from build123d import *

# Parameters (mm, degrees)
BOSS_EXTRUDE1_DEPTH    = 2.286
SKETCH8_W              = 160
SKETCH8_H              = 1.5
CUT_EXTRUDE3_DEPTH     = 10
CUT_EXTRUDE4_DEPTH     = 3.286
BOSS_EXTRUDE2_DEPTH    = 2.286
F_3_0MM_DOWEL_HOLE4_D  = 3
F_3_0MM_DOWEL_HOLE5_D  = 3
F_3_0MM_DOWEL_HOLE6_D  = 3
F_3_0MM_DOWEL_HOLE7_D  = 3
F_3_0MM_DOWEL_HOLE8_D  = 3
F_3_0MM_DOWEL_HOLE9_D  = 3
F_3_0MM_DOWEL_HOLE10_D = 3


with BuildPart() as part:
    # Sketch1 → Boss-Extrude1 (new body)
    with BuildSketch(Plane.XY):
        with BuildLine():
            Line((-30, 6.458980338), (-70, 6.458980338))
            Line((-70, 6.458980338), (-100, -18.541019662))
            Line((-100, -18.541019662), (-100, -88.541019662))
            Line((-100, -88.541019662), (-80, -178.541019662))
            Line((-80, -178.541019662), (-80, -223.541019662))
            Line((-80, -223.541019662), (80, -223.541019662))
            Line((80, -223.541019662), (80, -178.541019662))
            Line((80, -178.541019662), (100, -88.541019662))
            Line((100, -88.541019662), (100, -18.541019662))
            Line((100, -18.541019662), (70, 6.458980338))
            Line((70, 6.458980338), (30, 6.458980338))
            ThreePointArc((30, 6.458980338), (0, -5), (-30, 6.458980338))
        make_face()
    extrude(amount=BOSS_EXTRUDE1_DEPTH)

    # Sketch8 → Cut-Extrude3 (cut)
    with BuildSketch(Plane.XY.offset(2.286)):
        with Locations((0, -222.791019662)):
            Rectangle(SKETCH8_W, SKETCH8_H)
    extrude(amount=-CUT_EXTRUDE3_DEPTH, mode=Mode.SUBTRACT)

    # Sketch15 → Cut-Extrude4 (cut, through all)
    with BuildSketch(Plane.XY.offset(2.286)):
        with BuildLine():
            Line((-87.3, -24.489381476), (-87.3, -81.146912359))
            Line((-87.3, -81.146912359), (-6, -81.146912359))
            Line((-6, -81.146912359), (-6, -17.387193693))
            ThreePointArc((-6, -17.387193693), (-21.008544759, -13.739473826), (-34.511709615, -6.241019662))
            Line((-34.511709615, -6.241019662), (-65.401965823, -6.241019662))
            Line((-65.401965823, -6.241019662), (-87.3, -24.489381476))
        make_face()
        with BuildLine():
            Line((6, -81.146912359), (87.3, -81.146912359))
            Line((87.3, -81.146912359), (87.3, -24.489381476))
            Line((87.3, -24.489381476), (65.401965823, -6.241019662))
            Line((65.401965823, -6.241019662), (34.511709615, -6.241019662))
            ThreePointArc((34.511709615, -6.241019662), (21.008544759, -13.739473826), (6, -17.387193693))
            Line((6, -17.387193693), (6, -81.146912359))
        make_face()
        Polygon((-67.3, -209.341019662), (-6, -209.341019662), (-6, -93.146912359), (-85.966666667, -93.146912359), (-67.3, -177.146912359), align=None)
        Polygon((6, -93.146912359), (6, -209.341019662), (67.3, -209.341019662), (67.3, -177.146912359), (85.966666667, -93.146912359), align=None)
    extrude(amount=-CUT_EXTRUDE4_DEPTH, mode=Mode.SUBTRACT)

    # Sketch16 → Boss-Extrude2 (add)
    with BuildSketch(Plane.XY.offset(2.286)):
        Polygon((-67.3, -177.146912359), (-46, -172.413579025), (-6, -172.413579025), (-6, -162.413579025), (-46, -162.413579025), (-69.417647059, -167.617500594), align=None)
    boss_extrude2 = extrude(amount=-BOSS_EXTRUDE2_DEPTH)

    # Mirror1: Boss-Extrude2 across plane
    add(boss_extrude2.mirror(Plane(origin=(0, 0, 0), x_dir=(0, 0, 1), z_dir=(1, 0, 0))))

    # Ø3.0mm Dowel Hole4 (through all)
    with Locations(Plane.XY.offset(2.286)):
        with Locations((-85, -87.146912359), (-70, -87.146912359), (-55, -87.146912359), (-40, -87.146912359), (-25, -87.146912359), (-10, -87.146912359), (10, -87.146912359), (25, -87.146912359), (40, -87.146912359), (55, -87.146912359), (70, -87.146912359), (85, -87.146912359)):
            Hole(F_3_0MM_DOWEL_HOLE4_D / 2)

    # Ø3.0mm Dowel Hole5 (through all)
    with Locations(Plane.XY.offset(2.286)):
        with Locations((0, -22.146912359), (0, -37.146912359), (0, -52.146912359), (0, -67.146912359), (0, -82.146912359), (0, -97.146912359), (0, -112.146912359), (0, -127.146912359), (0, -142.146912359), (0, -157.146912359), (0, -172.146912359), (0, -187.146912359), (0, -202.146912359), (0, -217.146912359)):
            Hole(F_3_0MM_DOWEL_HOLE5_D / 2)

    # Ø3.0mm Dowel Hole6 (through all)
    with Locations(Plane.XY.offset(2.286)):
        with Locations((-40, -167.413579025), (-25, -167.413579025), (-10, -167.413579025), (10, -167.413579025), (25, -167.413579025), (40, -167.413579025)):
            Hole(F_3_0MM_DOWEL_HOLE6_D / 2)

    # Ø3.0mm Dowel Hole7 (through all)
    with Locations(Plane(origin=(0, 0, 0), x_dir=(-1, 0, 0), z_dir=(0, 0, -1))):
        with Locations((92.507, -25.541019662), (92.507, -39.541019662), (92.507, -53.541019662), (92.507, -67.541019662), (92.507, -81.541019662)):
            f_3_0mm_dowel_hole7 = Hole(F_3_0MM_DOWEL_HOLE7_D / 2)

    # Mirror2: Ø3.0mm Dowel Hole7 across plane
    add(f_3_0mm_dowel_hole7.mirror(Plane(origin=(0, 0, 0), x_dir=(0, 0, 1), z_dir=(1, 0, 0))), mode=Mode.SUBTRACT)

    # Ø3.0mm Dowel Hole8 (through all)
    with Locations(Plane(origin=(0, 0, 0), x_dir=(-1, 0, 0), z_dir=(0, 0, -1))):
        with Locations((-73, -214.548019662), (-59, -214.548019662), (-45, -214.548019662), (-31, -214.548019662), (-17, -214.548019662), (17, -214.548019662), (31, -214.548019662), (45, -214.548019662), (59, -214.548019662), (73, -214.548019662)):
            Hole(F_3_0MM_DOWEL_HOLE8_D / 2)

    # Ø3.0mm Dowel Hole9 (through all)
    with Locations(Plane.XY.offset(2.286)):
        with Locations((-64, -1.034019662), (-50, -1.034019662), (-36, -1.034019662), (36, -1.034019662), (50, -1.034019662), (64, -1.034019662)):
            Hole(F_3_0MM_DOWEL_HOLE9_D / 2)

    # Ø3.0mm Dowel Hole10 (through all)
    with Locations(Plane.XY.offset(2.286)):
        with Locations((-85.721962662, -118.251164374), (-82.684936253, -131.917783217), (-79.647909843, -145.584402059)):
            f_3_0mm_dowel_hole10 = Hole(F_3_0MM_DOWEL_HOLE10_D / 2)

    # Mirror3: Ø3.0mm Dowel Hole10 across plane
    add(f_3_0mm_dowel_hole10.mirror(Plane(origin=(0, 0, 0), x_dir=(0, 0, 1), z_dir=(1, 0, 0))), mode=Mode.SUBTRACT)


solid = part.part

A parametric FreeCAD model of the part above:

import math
import FreeCAD as App
import Part
import Sketcher

V = App.Vector
Q = App.Units.Quantity


def add_polygon(sketch, points):
    """Adds a closed chain of lines whose ends are joined by coincident constraints."""
    first, n = sketch.GeometryCount, len(points)
    for a, b in zip(points, points[1:] + points[:1]):
        sketch.addGeometry(Part.LineSegment(App.Vector(*a, 0), App.Vector(*b, 0)), False)
    for i in range(n):
        sketch.addConstraint(Sketcher.Constraint("Coincident", first + i, 2, first + (i + 1) % n, 1))

doc = App.newDocument("Part")
body = doc.addObject("PartDesign::Body", "Body")

# Sketch on XY plane
sketch1 = doc.addObject("Sketcher::SketchObject", "Sketch")
body.addObject(sketch1)
sketch1.AttachmentSupport = (doc.XY_Plane, [""])
sketch1.MapMode = "FlatFace"
sketch1.addGeometry(Part.LineSegment(V(-30, 6, 0), V(-70, 6, 0)), False)
sketch1.addGeometry(Part.LineSegment(V(-70, 6, 0), V(-100, -19, 0)), False)
sketch1.addGeometry(Part.LineSegment(V(-100, -19, 0), V(-100, -89, 0)), False)
sketch1.addGeometry(Part.LineSegment(V(-100, -89, 0), V(-80, -179, 0)), False)
sketch1.addGeometry(Part.LineSegment(V(-80, -179, 0), V(-80, -224, 0)), False)
sketch1.addGeometry(Part.LineSegment(V(-80, -224, 0), V(80, -224, 0)), False)
sketch1.addGeometry(Part.LineSegment(V(80, -224, 0), V(80, -179, 0)), False)
sketch1.addGeometry(Part.LineSegment(V(80, -179, 0), V(100, -89, 0)), False)
sketch1.addGeometry(Part.LineSegment(V(100, -89, 0), V(100, -19, 0)), False)
sketch1.addGeometry(Part.LineSegment(V(100, -19, 0), V(70, 6, 0)), False)
sketch1.addGeometry(Part.LineSegment(V(70, 6, 0), V(30, 6, 0)), False)
sketch1.addGeometry(Part.ArcOfCircle(Part.Circle(V(0, 40, 0), V(0, 0, 1), 45), math.radians(-132), math.radians(-48)), False)
sketch1.addConstraint(Sketcher.Constraint("Coincident", 0, 2, 1, 1))
sketch1.addConstraint(Sketcher.Constraint("Coincident", 1, 2, 2, 1))
sketch1.addConstraint(Sketcher.Constraint("Coincident", 2, 2, 3, 1))
sketch1.addConstraint(Sketcher.Constraint("Coincident", 3, 2, 4, 1))
sketch1.addConstraint(Sketcher.Constraint("Coincident", 4, 2, 5, 1))
sketch1.addConstraint(Sketcher.Constraint("Coincident", 5, 2, 6, 1))
sketch1.addConstraint(Sketcher.Constraint("Coincident", 6, 2, 7, 1))
sketch1.addConstraint(Sketcher.Constraint("Coincident", 7, 2, 8, 1))
sketch1.addConstraint(Sketcher.Constraint("Coincident", 8, 2, 9, 1))
sketch1.addConstraint(Sketcher.Constraint("Coincident", 9, 2, 10, 1))
sketch1.addConstraint(Sketcher.Constraint("Coincident", 10, 2, 11, 2))
sketch1.addConstraint(Sketcher.Constraint("Coincident", 11, 1, 0, 1))
sketch1.addConstraint(Sketcher.Constraint("Horizontal", 0))
sketch1.addConstraint(Sketcher.Constraint("Vertical", 2))
sketch1.addConstraint(Sketcher.Constraint("Vertical", 4))
sketch1.addConstraint(Sketcher.Constraint("Horizontal", 5))
sketch1.addConstraint(Sketcher.Constraint("Vertical", 6))
sketch1.addConstraint(Sketcher.Constraint("Vertical", 8))
sketch1.addConstraint(Sketcher.Constraint("Horizontal", 10))
sketch1.addConstraint(Sketcher.Constraint("Symmetric", 3, 2, 6, 2, -2))
sketch1.addConstraint(Sketcher.Constraint("Symmetric", 2, 2, 7, 2, -2))
sketch1.addConstraint(Sketcher.Constraint("Symmetric", 0, 2, 9, 2, -2))
sketch1.addConstraint(Sketcher.Constraint("PointOnObject", 11, 3, -2))
sketch1.addConstraint(Sketcher.Constraint("Horizontal", 1, 2, 8, 2))
sketch1.addConstraint(Sketcher.Constraint("Radius", 11, Q("45 mm")))
sketch1.addConstraint(Sketcher.Constraint("DistanceX", 0, 2, 0, 1, Q("40 mm")))
sketch1.addConstraint(Sketcher.Constraint("DistanceX", 5, 1, 5, 2, Q("160 mm")))
sketch1.addConstraint(Sketcher.Constraint("DistanceY", 2, 2, 2, 1, Q("70 mm")))
sketch1.addConstraint(Sketcher.Constraint("DistanceY", 4, 2, 4, 1, Q("45 mm")))
sketch1.addConstraint(Sketcher.Constraint("DistanceY", -1, 1, 11, 3, Q("40 mm")))
sketch1.addConstraint(Sketcher.Constraint("DistanceX", 0, 2, -1, 1, Q("70 mm")))
sketch1.addConstraint(Sketcher.Constraint("DistanceX", 1, 2, -1, 1, Q("100 mm")))
sketch1.addConstraint(Sketcher.Constraint("DistanceY", 1, 2, 0, 2, Q("25 mm")))
sketch1.addConstraint(Sketcher.Constraint("DistanceY", 3, 2, 2, 2, Q("90 mm")))
pad1 = doc.addObject("PartDesign::Pad", "Pad")
body.addObject(pad1)
pad1.Profile = sketch1
pad1.Length = 2.286

# Sketch on XY plane
sketch2 = doc.addObject("Sketcher::SketchObject", "Sketch001")
body.addObject(sketch2)
sketch2.AttachmentSupport = (doc.XY_Plane, [""])
sketch2.MapMode = "FlatFace"
sketch2.AttachmentOffset = App.Placement(V(0, 0, 2.286), App.Rotation())
add_polygon(sketch2, [(-80, -222), (-80, -223.5), (80, -223.5), (80, -222)])  # lines 0-3
sketch2.addConstraint(Sketcher.Constraint("Vertical", 0))
sketch2.addConstraint(Sketcher.Constraint("Horizontal", 1))
sketch2.addConstraint(Sketcher.Constraint("Vertical", 2))
sketch2.addConstraint(Sketcher.Constraint("Horizontal", 3))
sketch2.addConstraint(Sketcher.Constraint("DistanceX", 1, 1, 1, 2, Q("160 mm")))
sketch2.addConstraint(Sketcher.Constraint("DistanceY", 0, 2, 0, 1, Q("1.5 mm")))
sketch2.addConstraint(Sketcher.Constraint("DistanceX", 0, 2, -1, 1, Q("80 mm")))
sketch2.addConstraint(Sketcher.Constraint("DistanceY", 0, 2, -1, 1, Q("223.54102 mm")))
pocket1 = doc.addObject("PartDesign::Pocket", "Pocket")
body.addObject(pocket1)
pocket1.Profile = sketch2
pocket1.Length = 10

# Sketch on XY plane
sketch3 = doc.addObject("Sketcher::SketchObject", "Sketch002")
body.addObject(sketch3)
sketch3.AttachmentSupport = (doc.XY_Plane, [""])
sketch3.MapMode = "FlatFace"
sketch3.AttachmentOffset = App.Placement(V(0, 0, 2.286), App.Rotation())
sketch3.addGeometry(Part.LineSegment(V(-87, -24, 0), V(-87, -81, 0)), False)  # 0
sketch3.addGeometry(Part.LineSegment(V(-87, -81, 0), V(-6, -81, 0)), False)  # 1
sketch3.addGeometry(Part.LineSegment(V(-6, -81, 0), V(-6, -17, 0)), False)  # 2
sketch3.addGeometry(Part.ArcOfCircle(Part.Circle(V(0, 40, 0), V(0, 0, 1), 58), math.radians(-127), math.radians(-96)), False)  # 3
sketch3.addGeometry(Part.LineSegment(V(-35, -6, 0), V(-65, -6, 0)), False)  # 4
sketch3.addGeometry(Part.LineSegment(V(-65, -6, 0), V(-87, -24, 0)), False)  # 5
sketch3.addGeometry(Part.LineSegment(V(6, -81, 0), V(87, -81, 0)), False)  # 6
sketch3.addGeometry(Part.LineSegment(V(87, -81, 0), V(87, -24, 0)), False)  # 7
sketch3.addGeometry(Part.LineSegment(V(87, -24, 0), V(65, -6, 0)), False)  # 8
sketch3.addGeometry(Part.LineSegment(V(65, -6, 0), V(35, -6, 0)), False)  # 9
sketch3.addGeometry(Part.ArcOfCircle(Part.Circle(V(0, 40, 0), V(0, 0, 1), 58), math.radians(-84), math.radians(-53)), False)  # 10
sketch3.addGeometry(Part.LineSegment(V(6, -17, 0), V(6, -81, 0)), False)  # 11
add_polygon(sketch3, [(-67, -209), (-6, -209), (-6, -93), (-86, -93), (-67, -177)])  # lines 12-16
add_polygon(sketch3, [(6, -93), (6, -209), (67, -209), (67, -177), (86, -93)])  # lines 17-21
sketch3.addConstraint(Sketcher.Constraint("Coincident", 0, 2, 1, 1))
sketch3.addConstraint(Sketcher.Constraint("Coincident", 1, 2, 2, 1))
sketch3.addConstraint(Sketcher.Constraint("Coincident", 2, 2, 3, 2))
sketch3.addConstraint(Sketcher.Constraint("Coincident", 3, 1, 4, 1))
sketch3.addConstraint(Sketcher.Constraint("Coincident", 4, 2, 5, 1))
sketch3.addConstraint(Sketcher.Constraint("Coincident", 5, 2, 0, 1))
sketch3.addConstraint(Sketcher.Constraint("Coincident", 6, 2, 7, 1))
sketch3.addConstraint(Sketcher.Constraint("Coincident", 7, 2, 8, 1))
sketch3.addConstraint(Sketcher.Constraint("Coincident", 8, 2, 9, 1))
sketch3.addConstraint(Sketcher.Constraint("Coincident", 9, 2, 10, 2))
sketch3.addConstraint(Sketcher.Constraint("Coincident", 10, 1, 11, 1))
sketch3.addConstraint(Sketcher.Constraint("Coincident", 11, 2, 6, 1))
sketch3.addConstraint(Sketcher.Constraint("Vertical", 0))
sketch3.addConstraint(Sketcher.Constraint("Horizontal", 1))
sketch3.addConstraint(Sketcher.Constraint("Vertical", 2))
sketch3.addConstraint(Sketcher.Constraint("Horizontal", 4))
sketch3.addConstraint(Sketcher.Constraint("Horizontal", 6))
sketch3.addConstraint(Sketcher.Constraint("Vertical", 7))
sketch3.addConstraint(Sketcher.Constraint("Horizontal", 9))
sketch3.addConstraint(Sketcher.Constraint("Vertical", 11))
sketch3.addConstraint(Sketcher.Constraint("Horizontal", 12))
sketch3.addConstraint(Sketcher.Constraint("Vertical", 13))
sketch3.addConstraint(Sketcher.Constraint("Horizontal", 14))
sketch3.addConstraint(Sketcher.Constraint("Vertical", 16))
sketch3.addConstraint(Sketcher.Constraint("Vertical", 17))
sketch3.addConstraint(Sketcher.Constraint("Horizontal", 18))
sketch3.addConstraint(Sketcher.Constraint("Vertical", 19))
sketch3.addConstraint(Sketcher.Constraint("Horizontal", 21))
sketch3.addConstraint(Sketcher.Constraint("Coincident", 10, 3, 3, 3))
sketch3.addConstraint(Sketcher.Constraint("Equal", 3, 10))
sketch3.addConstraint(Sketcher.Constraint("Symmetric", 0, 2, 6, 2, -2))
sketch3.addConstraint(Sketcher.Constraint("Symmetric", 4, 2, 8, 2, -2))
sketch3.addConstraint(Sketcher.Constraint("Symmetric", 2, 2, 10, 1, -2))
sketch3.addConstraint(Sketcher.Constraint("Symmetric", 12, 2, 17, 2, -2))
sketch3.addConstraint(Sketcher.Constraint("Symmetric", 15, 2, 19, 2, -2))
sketch3.addConstraint(Sketcher.Constraint("Symmetric", 14, 2, 20, 2, -2))
sketch3.addConstraint(Sketcher.Constraint("Horizontal", 5, 2, 7, 2))
sketch3.addConstraint(Sketcher.Constraint("Vertical", 2, 2, 12, 2))
sketch3.addConstraint(Sketcher.Constraint("Radius", 3, Q("57.7 mm")))
sketch3.addConstraint(Sketcher.Constraint("DistanceX", 1, 1, 1, 2, Q("81.3 mm")))
sketch3.addConstraint(Sketcher.Constraint("DistanceX", 12, 1, 12, 2, Q("61.3 mm")))
sketch3.addConstraint(Sketcher.Constraint("DistanceY", -1, 1, 3, 3, Q("40 mm")))
sketch3.addConstraint(Sketcher.Constraint("DistanceX", 1, 2, -1, 1, Q("6 mm")))
sketch3.addConstraint(Sketcher.Constraint("DistanceY", 13, 2, 1, 2, Q("12 mm")))
sketch3.addConstraint(Sketcher.Constraint("DistanceY", 15, 2, 14, 2, Q("84 mm")))
sketch3.addConstraint(Sketcher.Constraint("DistanceY", 0, 2, 0, 1, Q("56.657531 mm")))
sketch3.addConstraint(Sketcher.Constraint("DistanceY", 2, 1, 2, 2, Q("63.759719 mm")))
sketch3.addConstraint(Sketcher.Constraint("DistanceX", 14, 2, 4, 2, Q("20.564701 mm")))
sketch3.addConstraint(Sketcher.Constraint("Distance", 15, Q("86.049082 mm")))
sketch3.addConstraint(Sketcher.Constraint("DistanceX", 4, 2, 4, 1, Q("30.890256 mm")))
sketch3.addConstraint(Sketcher.Constraint("DistanceY", 13, 1, 13, 2, Q("116.194107 mm")))
pocket2 = doc.addObject("PartDesign::Pocket", "Pocket001")
body.addObject(pocket2)
pocket2.Profile = sketch3
pocket2.Type = "ThroughAll"

# Sketch on XY plane
sketch4 = doc.addObject("Sketcher::SketchObject", "Sketch003")
body.addObject(sketch4)
sketch4.AttachmentSupport = (doc.XY_Plane, [""])
sketch4.MapMode = "FlatFace"
sketch4.AttachmentOffset = App.Placement(V(0, 0, 2.286), App.Rotation())
add_polygon(sketch4, [(-67, -177), (-46, -172), (-6, -172), (-6, -162), (-46, -162), (-69, -168)])  # lines 0-5
sketch4.addConstraint(Sketcher.Constraint("Horizontal", 1))
sketch4.addConstraint(Sketcher.Constraint("Vertical", 2))
sketch4.addConstraint(Sketcher.Constraint("Horizontal", 3))
sketch4.addConstraint(Sketcher.Constraint("Parallel", 0, 4))
sketch4.addConstraint(Sketcher.Constraint("Perpendicular", 4, 5))
sketch4.addConstraint(Sketcher.Constraint("Vertical", 0, 2, 3, 2))
sketch4.addConstraint(Sketcher.Constraint("DistanceX", 1, 1, 1, 2, Q("40 mm")))
sketch4.addConstraint(Sketcher.Constraint("DistanceY", 2, 1, 2, 2, Q("10 mm")))
sketch4.addConstraint(Sketcher.Constraint("DistanceX", 0, 2, -1, 1, Q("46 mm")))
sketch4.addConstraint(Sketcher.Constraint("DistanceX", 5, 2, -1, 1, Q("67.3 mm")))
sketch4.addConstraint(Sketcher.Constraint("DistanceY", 4, 2, -1, 1, Q("167.617501 mm")))
sketch4.addConstraint(Sketcher.Constraint("Distance", 0, Q("21.819589 mm")))
pad2 = doc.addObject("PartDesign::Pad", "Pad001")
body.addObject(pad2)
pad2.Profile = sketch4
pad2.Length = 2.286
pad2.Reversed = True
doc.recompute()

mirrored = doc.addObject("PartDesign::Mirrored", "Mirrored")
body.addObject(mirrored)
mirrored.Originals = [pad2]
mirrored.MirrorPlane = (doc.YZ_Plane, [""])
body.Tip = mirrored

# Sketch on XY plane
sketch5 = doc.addObject("Sketcher::SketchObject", "Sketch004")
body.addObject(sketch5)
sketch5.AttachmentSupport = (doc.XY_Plane, [""])
sketch5.MapMode = "FlatFace"
sketch5.AttachmentOffset = App.Placement(V(0, 0, 2.286), App.Rotation())
sketch5.addGeometry(Part.Circle(V(-85, -87.1, 0), V(0, 0, 1), 1.5), False)
sketch5.addGeometry(Part.Circle(V(-70, -87.1, 0), V(0, 0, 1), 1.5), False)
sketch5.addGeometry(Part.Circle(V(-55, -87.1, 0), V(0, 0, 1), 1.5), False)
sketch5.addGeometry(Part.Circle(V(-40, -87.1, 0), V(0, 0, 1), 1.5), False)
sketch5.addGeometry(Part.Circle(V(-25, -87.1, 0), V(0, 0, 1), 1.5), False)
sketch5.addGeometry(Part.Circle(V(-10, -87.1, 0), V(0, 0, 1), 1.5), False)
sketch5.addGeometry(Part.Circle(V(10, -87.1, 0), V(0, 0, 1), 1.5), False)
sketch5.addGeometry(Part.Circle(V(25, -87.1, 0), V(0, 0, 1), 1.5), False)
sketch5.addGeometry(Part.Circle(V(40, -87.1, 0), V(0, 0, 1), 1.5), False)
sketch5.addGeometry(Part.Circle(V(55, -87.1, 0), V(0, 0, 1), 1.5), False)
sketch5.addGeometry(Part.Circle(V(70, -87.1, 0), V(0, 0, 1), 1.5), False)
sketch5.addGeometry(Part.Circle(V(85, -87.1, 0), V(0, 0, 1), 1.5), False)
sketch5.addConstraint(Sketcher.Constraint("Equal", 0, 1))
sketch5.addConstraint(Sketcher.Constraint("Equal", 1, 2))
sketch5.addConstraint(Sketcher.Constraint("Equal", 2, 3))
sketch5.addConstraint(Sketcher.Constraint("Equal", 3, 4))
sketch5.addConstraint(Sketcher.Constraint("Equal", 4, 5))
sketch5.addConstraint(Sketcher.Constraint("Equal", 5, 6))
sketch5.addConstraint(Sketcher.Constraint("Equal", 6, 7))
sketch5.addConstraint(Sketcher.Constraint("Equal", 7, 8))
sketch5.addConstraint(Sketcher.Constraint("Equal", 8, 9))
sketch5.addConstraint(Sketcher.Constraint("Equal", 9, 10))
sketch5.addConstraint(Sketcher.Constraint("Equal", 10, 11))
sketch5.addConstraint(Sketcher.Constraint("Symmetric", 5, 3, 6, 3, -2))
sketch5.addConstraint(Sketcher.Constraint("Symmetric", 4, 3, 7, 3, -2))
sketch5.addConstraint(Sketcher.Constraint("Symmetric", 3, 3, 8, 3, -2))
sketch5.addConstraint(Sketcher.Constraint("Symmetric", 2, 3, 9, 3, -2))
sketch5.addConstraint(Sketcher.Constraint("Symmetric", 1, 3, 10, 3, -2))
sketch5.addConstraint(Sketcher.Constraint("Symmetric", 0, 3, 11, 3, -2))
sketch5.addConstraint(Sketcher.Constraint("Horizontal", 0, 3, 1, 3))
sketch5.addConstraint(Sketcher.Constraint("Horizontal", 1, 3, 2, 3))
sketch5.addConstraint(Sketcher.Constraint("Horizontal", 2, 3, 3, 3))
sketch5.addConstraint(Sketcher.Constraint("Horizontal", 3, 3, 4, 3))
sketch5.addConstraint(Sketcher.Constraint("Horizontal", 4, 3, 5, 3))
sketch5.addConstraint(Sketcher.Constraint("Diameter", 0, Q("3 mm")))
sketch5.addConstraint(Sketcher.Constraint("DistanceX", 0, 3, -1, 1, Q("85 mm")))
sketch5.addConstraint(Sketcher.Constraint("DistanceX", 1, 3, -1, 1, Q("70 mm")))
sketch5.addConstraint(Sketcher.Constraint("DistanceX", 2, 3, -1, 1, Q("55 mm")))
sketch5.addConstraint(Sketcher.Constraint("DistanceX", 3, 3, -1, 1, Q("40 mm")))
sketch5.addConstraint(Sketcher.Constraint("DistanceX", 4, 3, -1, 1, Q("25 mm")))
sketch5.addConstraint(Sketcher.Constraint("DistanceX", 5, 3, -1, 1, Q("10 mm")))
sketch5.addConstraint(Sketcher.Constraint("DistanceY", 0, 3, -1, 1, Q("87.146912 mm")))
doc.recompute()
hole = doc.addObject("PartDesign::Hole", "Hole")
body.addObject(hole)
hole.Profile = sketch5
hole.ThreadType = "None"
hole.Diameter = 3
hole.DepthType = "ThroughAll"

# Sketch on XY plane
sketch6 = doc.addObject("Sketcher::SketchObject", "Sketch005")
body.addObject(sketch6)
sketch6.AttachmentSupport = (doc.XY_Plane, [""])
sketch6.MapMode = "FlatFace"
sketch6.AttachmentOffset = App.Placement(V(0, 0, 2.286), App.Rotation())
sketch6.addGeometry(Part.Circle(V(0, -22.1, 0), V(0, 0, 1), 1.5), False)
sketch6.addGeometry(Part.Circle(V(0, -37.1, 0), V(0, 0, 1), 1.5), False)
sketch6.addGeometry(Part.Circle(V(0, -52.1, 0), V(0, 0, 1), 1.5), False)
sketch6.addGeometry(Part.Circle(V(0, -67.1, 0), V(0, 0, 1), 1.5), False)
sketch6.addGeometry(Part.Circle(V(0, -82.1, 0), V(0, 0, 1), 1.5), False)
sketch6.addGeometry(Part.Circle(V(0, -97.1, 0), V(0, 0, 1), 1.5), False)
sketch6.addGeometry(Part.Circle(V(0, -112.1, 0), V(0, 0, 1), 1.5), False)
sketch6.addGeometry(Part.Circle(V(0, -127.1, 0), V(0, 0, 1), 1.5), False)
sketch6.addGeometry(Part.Circle(V(0, -142.1, 0), V(0, 0, 1), 1.5), False)
sketch6.addGeometry(Part.Circle(V(0, -157.1, 0), V(0, 0, 1), 1.5), False)
sketch6.addGeometry(Part.Circle(V(0, -172.1, 0), V(0, 0, 1), 1.5), False)
sketch6.addGeometry(Part.Circle(V(0, -187.1, 0), V(0, 0, 1), 1.5), False)
sketch6.addGeometry(Part.Circle(V(0, -202.1, 0), V(0, 0, 1), 1.5), False)
sketch6.addGeometry(Part.Circle(V(0, -217.1, 0), V(0, 0, 1), 1.5), False)
sketch6.addConstraint(Sketcher.Constraint("Equal", 0, 1))
sketch6.addConstraint(Sketcher.Constraint("Equal", 1, 2))
sketch6.addConstraint(Sketcher.Constraint("Equal", 2, 3))
sketch6.addConstraint(Sketcher.Constraint("Equal", 3, 4))
sketch6.addConstraint(Sketcher.Constraint("Equal", 4, 5))
sketch6.addConstraint(Sketcher.Constraint("Equal", 5, 6))
sketch6.addConstraint(Sketcher.Constraint("Equal", 6, 7))
sketch6.addConstraint(Sketcher.Constraint("Equal", 7, 8))
sketch6.addConstraint(Sketcher.Constraint("Equal", 8, 9))
sketch6.addConstraint(Sketcher.Constraint("Equal", 9, 10))
sketch6.addConstraint(Sketcher.Constraint("Equal", 10, 11))
sketch6.addConstraint(Sketcher.Constraint("Equal", 11, 12))
sketch6.addConstraint(Sketcher.Constraint("Equal", 12, 13))
sketch6.addConstraint(Sketcher.Constraint("PointOnObject", 0, 3, -2))
sketch6.addConstraint(Sketcher.Constraint("PointOnObject", 1, 3, -2))
sketch6.addConstraint(Sketcher.Constraint("PointOnObject", 2, 3, -2))
sketch6.addConstraint(Sketcher.Constraint("PointOnObject", 3, 3, -2))
sketch6.addConstraint(Sketcher.Constraint("PointOnObject", 4, 3, -2))
sketch6.addConstraint(Sketcher.Constraint("PointOnObject", 5, 3, -2))
sketch6.addConstraint(Sketcher.Constraint("PointOnObject", 6, 3, -2))
sketch6.addConstraint(Sketcher.Constraint("PointOnObject", 7, 3, -2))
sketch6.addConstraint(Sketcher.Constraint("PointOnObject", 8, 3, -2))
sketch6.addConstraint(Sketcher.Constraint("PointOnObject", 9, 3, -2))
sketch6.addConstraint(Sketcher.Constraint("PointOnObject", 10, 3, -2))
sketch6.addConstraint(Sketcher.Constraint("PointOnObject", 11, 3, -2))
sketch6.addConstraint(Sketcher.Constraint("PointOnObject", 12, 3, -2))
sketch6.addConstraint(Sketcher.Constraint("PointOnObject", 13, 3, -2))
sketch6.addConstraint(Sketcher.Constraint("Diameter", 0, Q("3 mm")))
sketch6.addConstraint(Sketcher.Constraint("DistanceY", 1, 3, 0, 3, Q("15 mm")))
sketch6.addConstraint(Sketcher.Constraint("DistanceY", 2, 3, 1, 3, Q("15 mm")))
sketch6.addConstraint(Sketcher.Constraint("DistanceY", 3, 3, 2, 3, Q("15 mm")))
sketch6.addConstraint(Sketcher.Constraint("DistanceY", 4, 3, 3, 3, Q("15 mm")))
sketch6.addConstraint(Sketcher.Constraint("DistanceY", 5, 3, 4, 3, Q("15 mm")))
sketch6.addConstraint(Sketcher.Constraint("DistanceY", 6, 3, 5, 3, Q("15 mm")))
sketch6.addConstraint(Sketcher.Constraint("DistanceY", 7, 3, 6, 3, Q("15 mm")))
sketch6.addConstraint(Sketcher.Constraint("DistanceY", 8, 3, 7, 3, Q("15 mm")))
sketch6.addConstraint(Sketcher.Constraint("DistanceY", 9, 3, 8, 3, Q("15 mm")))
sketch6.addConstraint(Sketcher.Constraint("DistanceY", 10, 3, 9, 3, Q("15 mm")))
sketch6.addConstraint(Sketcher.Constraint("DistanceY", 11, 3, 10, 3, Q("15 mm")))
sketch6.addConstraint(Sketcher.Constraint("DistanceY", 12, 3, 11, 3, Q("15 mm")))
sketch6.addConstraint(Sketcher.Constraint("DistanceY", 13, 3, 12, 3, Q("15 mm")))
sketch6.addConstraint(Sketcher.Constraint("DistanceY", 0, 3, -1, 1, Q("22.146912 mm")))
doc.recompute()
hole2 = doc.addObject("PartDesign::Hole", "Hole001")
body.addObject(hole2)
hole2.Profile = sketch6
hole2.ThreadType = "None"
hole2.Diameter = 3
hole2.DepthType = "ThroughAll"

# Sketch on XY plane
sketch7 = doc.addObject("Sketcher::SketchObject", "Sketch006")
body.addObject(sketch7)
sketch7.AttachmentSupport = (doc.XY_Plane, [""])
sketch7.MapMode = "FlatFace"
sketch7.AttachmentOffset = App.Placement(V(0, 0, 2.286), App.Rotation())
sketch7.addGeometry(Part.Circle(V(-40, -167.4, 0), V(0, 0, 1), 1.5), False)
sketch7.addGeometry(Part.Circle(V(-25, -167.4, 0), V(0, 0, 1), 1.5), False)
sketch7.addGeometry(Part.Circle(V(-10, -167.4, 0), V(0, 0, 1), 1.5), False)
sketch7.addGeometry(Part.Circle(V(10, -167.4, 0), V(0, 0, 1), 1.5), False)
sketch7.addGeometry(Part.Circle(V(25, -167.4, 0), V(0, 0, 1), 1.5), False)
sketch7.addGeometry(Part.Circle(V(40, -167.4, 0), V(0, 0, 1), 1.5), False)
sketch7.addConstraint(Sketcher.Constraint("Equal", 0, 1))
sketch7.addConstraint(Sketcher.Constraint("Equal", 1, 2))
sketch7.addConstraint(Sketcher.Constraint("Equal", 2, 3))
sketch7.addConstraint(Sketcher.Constraint("Equal", 3, 4))
sketch7.addConstraint(Sketcher.Constraint("Equal", 4, 5))
sketch7.addConstraint(Sketcher.Constraint("Symmetric", 2, 3, 3, 3, -2))
sketch7.addConstraint(Sketcher.Constraint("Symmetric", 1, 3, 4, 3, -2))
sketch7.addConstraint(Sketcher.Constraint("Symmetric", 0, 3, 5, 3, -2))
sketch7.addConstraint(Sketcher.Constraint("Horizontal", 0, 3, 1, 3))
sketch7.addConstraint(Sketcher.Constraint("Horizontal", 1, 3, 2, 3))
sketch7.addConstraint(Sketcher.Constraint("Diameter", 0, Q("3 mm")))
sketch7.addConstraint(Sketcher.Constraint("DistanceX", 0, 3, -1, 1, Q("40 mm")))
sketch7.addConstraint(Sketcher.Constraint("DistanceX", 1, 3, -1, 1, Q("25 mm")))
sketch7.addConstraint(Sketcher.Constraint("DistanceX", 2, 3, -1, 1, Q("10 mm")))
sketch7.addConstraint(Sketcher.Constraint("DistanceY", 0, 3, -1, 1, Q("167.413579 mm")))
doc.recompute()
hole3 = doc.addObject("PartDesign::Hole", "Hole002")
body.addObject(hole3)
hole3.Profile = sketch7
hole3.ThreadType = "None"
hole3.Diameter = 3
hole3.DepthType = "ThroughAll"

# Sketch on XY plane
sketch8 = doc.addObject("Sketcher::SketchObject", "Sketch007")
body.addObject(sketch8)
sketch8.AttachmentSupport = (doc.XY_Plane, [""])
sketch8.MapMode = "FlatFace"
sketch8.addGeometry(Part.Circle(V(-92.5, -25.5, 0), V(0, 0, 1), 1.5), False)
sketch8.addGeometry(Part.Circle(V(-92.5, -39.5, 0), V(0, 0, 1), 1.5), False)
sketch8.addGeometry(Part.Circle(V(-92.5, -53.5, 0), V(0, 0, 1), 1.5), False)
sketch8.addGeometry(Part.Circle(V(-92.5, -67.5, 0), V(0, 0, 1), 1.5), False)
sketch8.addGeometry(Part.Circle(V(-92.5, -81.5, 0), V(0, 0, 1), 1.5), False)
sketch8.addConstraint(Sketcher.Constraint("Equal", 0, 1))
sketch8.addConstraint(Sketcher.Constraint("Equal", 1, 2))
sketch8.addConstraint(Sketcher.Constraint("Equal", 2, 3))
sketch8.addConstraint(Sketcher.Constraint("Equal", 3, 4))
sketch8.addConstraint(Sketcher.Constraint("Vertical", 0, 3, 1, 3))
sketch8.addConstraint(Sketcher.Constraint("Vertical", 1, 3, 2, 3))
sketch8.addConstraint(Sketcher.Constraint("Vertical", 2, 3, 3, 3))
sketch8.addConstraint(Sketcher.Constraint("Vertical", 3, 3, 4, 3))
sketch8.addConstraint(Sketcher.Constraint("Diameter", 0, Q("3 mm")))
sketch8.addConstraint(Sketcher.Constraint("DistanceY", 1, 3, 0, 3, Q("14 mm")))
sketch8.addConstraint(Sketcher.Constraint("DistanceY", 2, 3, 1, 3, Q("14 mm")))
sketch8.addConstraint(Sketcher.Constraint("DistanceY", 3, 3, 2, 3, Q("14 mm")))
sketch8.addConstraint(Sketcher.Constraint("DistanceY", 4, 3, 3, 3, Q("14 mm")))
sketch8.addConstraint(Sketcher.Constraint("DistanceX", 0, 3, -1, 1, Q("92.507 mm")))
sketch8.addConstraint(Sketcher.Constraint("DistanceY", 0, 3, -1, 1, Q("25.54102 mm")))
doc.recompute()
hole4 = doc.addObject("PartDesign::Hole", "Hole003")
body.addObject(hole4)
hole4.Profile = sketch8
hole4.ThreadType = "None"
hole4.Diameter = 3
hole4.DepthType = "ThroughAll"
hole4.Reversed = True
doc.recompute()

mirrored2 = doc.addObject("PartDesign::Mirrored", "Mirrored001")
body.addObject(mirrored2)
mirrored2.Originals = [hole4]
mirrored2.MirrorPlane = (doc.YZ_Plane, [""])
body.Tip = mirrored2

# Sketch on XY plane
sketch9 = doc.addObject("Sketcher::SketchObject", "Sketch008")
body.addObject(sketch9)
sketch9.AttachmentSupport = (doc.XY_Plane, [""])
sketch9.MapMode = "FlatFace"
sketch9.addGeometry(Part.Circle(V(73, -214.5, 0), V(0, 0, 1), 1.5), False)
sketch9.addGeometry(Part.Circle(V(59, -214.5, 0), V(0, 0, 1), 1.5), False)
sketch9.addGeometry(Part.Circle(V(45, -214.5, 0), V(0, 0, 1), 1.5), False)
sketch9.addGeometry(Part.Circle(V(31, -214.5, 0), V(0, 0, 1), 1.5), False)
sketch9.addGeometry(Part.Circle(V(17, -214.5, 0), V(0, 0, 1), 1.5), False)
sketch9.addGeometry(Part.Circle(V(-17, -214.5, 0), V(0, 0, 1), 1.5), False)
sketch9.addGeometry(Part.Circle(V(-31, -214.5, 0), V(0, 0, 1), 1.5), False)
sketch9.addGeometry(Part.Circle(V(-45, -214.5, 0), V(0, 0, 1), 1.5), False)
sketch9.addGeometry(Part.Circle(V(-59, -214.5, 0), V(0, 0, 1), 1.5), False)
sketch9.addGeometry(Part.Circle(V(-73, -214.5, 0), V(0, 0, 1), 1.5), False)
sketch9.addConstraint(Sketcher.Constraint("Equal", 0, 1))
sketch9.addConstraint(Sketcher.Constraint("Equal", 1, 2))
sketch9.addConstraint(Sketcher.Constraint("Equal", 2, 3))
sketch9.addConstraint(Sketcher.Constraint("Equal", 3, 4))
sketch9.addConstraint(Sketcher.Constraint("Equal", 4, 5))
sketch9.addConstraint(Sketcher.Constraint("Equal", 5, 6))
sketch9.addConstraint(Sketcher.Constraint("Equal", 6, 7))
sketch9.addConstraint(Sketcher.Constraint("Equal", 7, 8))
sketch9.addConstraint(Sketcher.Constraint("Equal", 8, 9))
sketch9.addConstraint(Sketcher.Constraint("Symmetric", 4, 3, 5, 3, -2))
sketch9.addConstraint(Sketcher.Constraint("Symmetric", 3, 3, 6, 3, -2))
sketch9.addConstraint(Sketcher.Constraint("Symmetric", 2, 3, 7, 3, -2))
sketch9.addConstraint(Sketcher.Constraint("Symmetric", 1, 3, 8, 3, -2))
sketch9.addConstraint(Sketcher.Constraint("Symmetric", 0, 3, 9, 3, -2))
sketch9.addConstraint(Sketcher.Constraint("Horizontal", 0, 3, 1, 3))
sketch9.addConstraint(Sketcher.Constraint("Horizontal", 1, 3, 2, 3))
sketch9.addConstraint(Sketcher.Constraint("Horizontal", 2, 3, 3, 3))
sketch9.addConstraint(Sketcher.Constraint("Horizontal", 3, 3, 4, 3))
sketch9.addConstraint(Sketcher.Constraint("Diameter", 0, Q("3 mm")))
sketch9.addConstraint(Sketcher.Constraint("DistanceX", -1, 1, 0, 3, Q("73 mm")))
sketch9.addConstraint(Sketcher.Constraint("DistanceX", -1, 1, 1, 3, Q("59 mm")))
sketch9.addConstraint(Sketcher.Constraint("DistanceX", -1, 1, 2, 3, Q("45 mm")))
sketch9.addConstraint(Sketcher.Constraint("DistanceX", -1, 1, 3, 3, Q("31 mm")))
sketch9.addConstraint(Sketcher.Constraint("DistanceX", -1, 1, 4, 3, Q("17 mm")))
sketch9.addConstraint(Sketcher.Constraint("DistanceY", 0, 3, -1, 1, Q("214.54802 mm")))
doc.recompute()
hole5 = doc.addObject("PartDesign::Hole", "Hole004")
body.addObject(hole5)
hole5.Profile = sketch9
hole5.ThreadType = "None"
hole5.Diameter = 3
hole5.DepthType = "ThroughAll"
hole5.Reversed = True

# Sketch on XY plane
sketch10 = doc.addObject("Sketcher::SketchObject", "Sketch009")
body.addObject(sketch10)
sketch10.AttachmentSupport = (doc.XY_Plane, [""])
sketch10.MapMode = "FlatFace"
sketch10.AttachmentOffset = App.Placement(V(0, 0, 2.286), App.Rotation())
sketch10.addGeometry(Part.Circle(V(-64, -1, 0), V(0, 0, 1), 1.5), False)
sketch10.addGeometry(Part.Circle(V(-50, -1, 0), V(0, 0, 1), 1.5), False)
sketch10.addGeometry(Part.Circle(V(-36, -1, 0), V(0, 0, 1), 1.5), False)
sketch10.addGeometry(Part.Circle(V(36, -1, 0), V(0, 0, 1), 1.5), False)
sketch10.addGeometry(Part.Circle(V(50, -1, 0), V(0, 0, 1), 1.5), False)
sketch10.addGeometry(Part.Circle(V(64, -1, 0), V(0, 0, 1), 1.5), False)
sketch10.addConstraint(Sketcher.Constraint("Equal", 0, 1))
sketch10.addConstraint(Sketcher.Constraint("Equal", 1, 2))
sketch10.addConstraint(Sketcher.Constraint("Equal", 2, 3))
sketch10.addConstraint(Sketcher.Constraint("Equal", 3, 4))
sketch10.addConstraint(Sketcher.Constraint("Equal", 4, 5))
sketch10.addConstraint(Sketcher.Constraint("Symmetric", 2, 3, 3, 3, -2))
sketch10.addConstraint(Sketcher.Constraint("Symmetric", 1, 3, 4, 3, -2))
sketch10.addConstraint(Sketcher.Constraint("Symmetric", 0, 3, 5, 3, -2))
sketch10.addConstraint(Sketcher.Constraint("Horizontal", 0, 3, 1, 3))
sketch10.addConstraint(Sketcher.Constraint("Horizontal", 1, 3, 2, 3))
sketch10.addConstraint(Sketcher.Constraint("Diameter", 0, Q("3 mm")))
sketch10.addConstraint(Sketcher.Constraint("DistanceX", 0, 3, -1, 1, Q("64 mm")))
sketch10.addConstraint(Sketcher.Constraint("DistanceX", 1, 3, -1, 1, Q("50 mm")))
sketch10.addConstraint(Sketcher.Constraint("DistanceX", 2, 3, -1, 1, Q("36 mm")))
sketch10.addConstraint(Sketcher.Constraint("DistanceY", 0, 3, -1, 1, Q("1.03402 mm")))
doc.recompute()
hole6 = doc.addObject("PartDesign::Hole", "Hole005")
body.addObject(hole6)
hole6.Profile = sketch10
hole6.ThreadType = "None"
hole6.Diameter = 3
hole6.DepthType = "ThroughAll"

# Sketch on XY plane
sketch11 = doc.addObject("Sketcher::SketchObject", "Sketch010")
body.addObject(sketch11)
sketch11.AttachmentSupport = (doc.XY_Plane, [""])
sketch11.MapMode = "FlatFace"
sketch11.AttachmentOffset = App.Placement(V(0, 0, 2.286), App.Rotation())
sketch11.addGeometry(Part.Circle(V(-85.7, -118.3, 0), V(0, 0, 1), 1.5), False)
sketch11.addGeometry(Part.Circle(V(-82.7, -131.9, 0), V(0, 0, 1), 1.5), False)
sketch11.addGeometry(Part.Circle(V(-79.6, -145.6, 0), V(0, 0, 1), 1.5), False)
sketch11.addConstraint(Sketcher.Constraint("Equal", 0, 1))
sketch11.addConstraint(Sketcher.Constraint("Equal", 1, 2))
sketch11.addConstraint(Sketcher.Constraint("Diameter", 0, Q("3 mm")))
sketch11.addConstraint(Sketcher.Constraint("DistanceX", 2, 3, -1, 1, Q("79.64791 mm")))
sketch11.addConstraint(Sketcher.Constraint("DistanceY", 1, 3, 0, 3, Q("13.666619 mm")))
sketch11.addConstraint(Sketcher.Constraint("DistanceY", 2, 3, 1, 3, Q("13.666619 mm")))
sketch11.addConstraint(Sketcher.Constraint("DistanceX", 0, 3, -1, 1, Q("85.721963 mm")))
sketch11.addConstraint(Sketcher.Constraint("DistanceY", 0, 3, -1, 1, Q("118.251164 mm")))
sketch11.addConstraint(Sketcher.Constraint("DistanceX", 1, 3, -1, 1, Q("82.684936 mm")))
doc.recompute()
hole7 = doc.addObject("PartDesign::Hole", "Hole006")
body.addObject(hole7)
hole7.Profile = sketch11
hole7.ThreadType = "None"
hole7.Diameter = 3
hole7.DepthType = "ThroughAll"
doc.recompute()

mirrored3 = doc.addObject("PartDesign::Mirrored", "Mirrored002")
body.addObject(mirrored3)
mirrored3.Originals = [hole7]
mirrored3.MirrorPlane = (doc.YZ_Plane, [""])
body.Tip = mirrored3

doc.recompute()
